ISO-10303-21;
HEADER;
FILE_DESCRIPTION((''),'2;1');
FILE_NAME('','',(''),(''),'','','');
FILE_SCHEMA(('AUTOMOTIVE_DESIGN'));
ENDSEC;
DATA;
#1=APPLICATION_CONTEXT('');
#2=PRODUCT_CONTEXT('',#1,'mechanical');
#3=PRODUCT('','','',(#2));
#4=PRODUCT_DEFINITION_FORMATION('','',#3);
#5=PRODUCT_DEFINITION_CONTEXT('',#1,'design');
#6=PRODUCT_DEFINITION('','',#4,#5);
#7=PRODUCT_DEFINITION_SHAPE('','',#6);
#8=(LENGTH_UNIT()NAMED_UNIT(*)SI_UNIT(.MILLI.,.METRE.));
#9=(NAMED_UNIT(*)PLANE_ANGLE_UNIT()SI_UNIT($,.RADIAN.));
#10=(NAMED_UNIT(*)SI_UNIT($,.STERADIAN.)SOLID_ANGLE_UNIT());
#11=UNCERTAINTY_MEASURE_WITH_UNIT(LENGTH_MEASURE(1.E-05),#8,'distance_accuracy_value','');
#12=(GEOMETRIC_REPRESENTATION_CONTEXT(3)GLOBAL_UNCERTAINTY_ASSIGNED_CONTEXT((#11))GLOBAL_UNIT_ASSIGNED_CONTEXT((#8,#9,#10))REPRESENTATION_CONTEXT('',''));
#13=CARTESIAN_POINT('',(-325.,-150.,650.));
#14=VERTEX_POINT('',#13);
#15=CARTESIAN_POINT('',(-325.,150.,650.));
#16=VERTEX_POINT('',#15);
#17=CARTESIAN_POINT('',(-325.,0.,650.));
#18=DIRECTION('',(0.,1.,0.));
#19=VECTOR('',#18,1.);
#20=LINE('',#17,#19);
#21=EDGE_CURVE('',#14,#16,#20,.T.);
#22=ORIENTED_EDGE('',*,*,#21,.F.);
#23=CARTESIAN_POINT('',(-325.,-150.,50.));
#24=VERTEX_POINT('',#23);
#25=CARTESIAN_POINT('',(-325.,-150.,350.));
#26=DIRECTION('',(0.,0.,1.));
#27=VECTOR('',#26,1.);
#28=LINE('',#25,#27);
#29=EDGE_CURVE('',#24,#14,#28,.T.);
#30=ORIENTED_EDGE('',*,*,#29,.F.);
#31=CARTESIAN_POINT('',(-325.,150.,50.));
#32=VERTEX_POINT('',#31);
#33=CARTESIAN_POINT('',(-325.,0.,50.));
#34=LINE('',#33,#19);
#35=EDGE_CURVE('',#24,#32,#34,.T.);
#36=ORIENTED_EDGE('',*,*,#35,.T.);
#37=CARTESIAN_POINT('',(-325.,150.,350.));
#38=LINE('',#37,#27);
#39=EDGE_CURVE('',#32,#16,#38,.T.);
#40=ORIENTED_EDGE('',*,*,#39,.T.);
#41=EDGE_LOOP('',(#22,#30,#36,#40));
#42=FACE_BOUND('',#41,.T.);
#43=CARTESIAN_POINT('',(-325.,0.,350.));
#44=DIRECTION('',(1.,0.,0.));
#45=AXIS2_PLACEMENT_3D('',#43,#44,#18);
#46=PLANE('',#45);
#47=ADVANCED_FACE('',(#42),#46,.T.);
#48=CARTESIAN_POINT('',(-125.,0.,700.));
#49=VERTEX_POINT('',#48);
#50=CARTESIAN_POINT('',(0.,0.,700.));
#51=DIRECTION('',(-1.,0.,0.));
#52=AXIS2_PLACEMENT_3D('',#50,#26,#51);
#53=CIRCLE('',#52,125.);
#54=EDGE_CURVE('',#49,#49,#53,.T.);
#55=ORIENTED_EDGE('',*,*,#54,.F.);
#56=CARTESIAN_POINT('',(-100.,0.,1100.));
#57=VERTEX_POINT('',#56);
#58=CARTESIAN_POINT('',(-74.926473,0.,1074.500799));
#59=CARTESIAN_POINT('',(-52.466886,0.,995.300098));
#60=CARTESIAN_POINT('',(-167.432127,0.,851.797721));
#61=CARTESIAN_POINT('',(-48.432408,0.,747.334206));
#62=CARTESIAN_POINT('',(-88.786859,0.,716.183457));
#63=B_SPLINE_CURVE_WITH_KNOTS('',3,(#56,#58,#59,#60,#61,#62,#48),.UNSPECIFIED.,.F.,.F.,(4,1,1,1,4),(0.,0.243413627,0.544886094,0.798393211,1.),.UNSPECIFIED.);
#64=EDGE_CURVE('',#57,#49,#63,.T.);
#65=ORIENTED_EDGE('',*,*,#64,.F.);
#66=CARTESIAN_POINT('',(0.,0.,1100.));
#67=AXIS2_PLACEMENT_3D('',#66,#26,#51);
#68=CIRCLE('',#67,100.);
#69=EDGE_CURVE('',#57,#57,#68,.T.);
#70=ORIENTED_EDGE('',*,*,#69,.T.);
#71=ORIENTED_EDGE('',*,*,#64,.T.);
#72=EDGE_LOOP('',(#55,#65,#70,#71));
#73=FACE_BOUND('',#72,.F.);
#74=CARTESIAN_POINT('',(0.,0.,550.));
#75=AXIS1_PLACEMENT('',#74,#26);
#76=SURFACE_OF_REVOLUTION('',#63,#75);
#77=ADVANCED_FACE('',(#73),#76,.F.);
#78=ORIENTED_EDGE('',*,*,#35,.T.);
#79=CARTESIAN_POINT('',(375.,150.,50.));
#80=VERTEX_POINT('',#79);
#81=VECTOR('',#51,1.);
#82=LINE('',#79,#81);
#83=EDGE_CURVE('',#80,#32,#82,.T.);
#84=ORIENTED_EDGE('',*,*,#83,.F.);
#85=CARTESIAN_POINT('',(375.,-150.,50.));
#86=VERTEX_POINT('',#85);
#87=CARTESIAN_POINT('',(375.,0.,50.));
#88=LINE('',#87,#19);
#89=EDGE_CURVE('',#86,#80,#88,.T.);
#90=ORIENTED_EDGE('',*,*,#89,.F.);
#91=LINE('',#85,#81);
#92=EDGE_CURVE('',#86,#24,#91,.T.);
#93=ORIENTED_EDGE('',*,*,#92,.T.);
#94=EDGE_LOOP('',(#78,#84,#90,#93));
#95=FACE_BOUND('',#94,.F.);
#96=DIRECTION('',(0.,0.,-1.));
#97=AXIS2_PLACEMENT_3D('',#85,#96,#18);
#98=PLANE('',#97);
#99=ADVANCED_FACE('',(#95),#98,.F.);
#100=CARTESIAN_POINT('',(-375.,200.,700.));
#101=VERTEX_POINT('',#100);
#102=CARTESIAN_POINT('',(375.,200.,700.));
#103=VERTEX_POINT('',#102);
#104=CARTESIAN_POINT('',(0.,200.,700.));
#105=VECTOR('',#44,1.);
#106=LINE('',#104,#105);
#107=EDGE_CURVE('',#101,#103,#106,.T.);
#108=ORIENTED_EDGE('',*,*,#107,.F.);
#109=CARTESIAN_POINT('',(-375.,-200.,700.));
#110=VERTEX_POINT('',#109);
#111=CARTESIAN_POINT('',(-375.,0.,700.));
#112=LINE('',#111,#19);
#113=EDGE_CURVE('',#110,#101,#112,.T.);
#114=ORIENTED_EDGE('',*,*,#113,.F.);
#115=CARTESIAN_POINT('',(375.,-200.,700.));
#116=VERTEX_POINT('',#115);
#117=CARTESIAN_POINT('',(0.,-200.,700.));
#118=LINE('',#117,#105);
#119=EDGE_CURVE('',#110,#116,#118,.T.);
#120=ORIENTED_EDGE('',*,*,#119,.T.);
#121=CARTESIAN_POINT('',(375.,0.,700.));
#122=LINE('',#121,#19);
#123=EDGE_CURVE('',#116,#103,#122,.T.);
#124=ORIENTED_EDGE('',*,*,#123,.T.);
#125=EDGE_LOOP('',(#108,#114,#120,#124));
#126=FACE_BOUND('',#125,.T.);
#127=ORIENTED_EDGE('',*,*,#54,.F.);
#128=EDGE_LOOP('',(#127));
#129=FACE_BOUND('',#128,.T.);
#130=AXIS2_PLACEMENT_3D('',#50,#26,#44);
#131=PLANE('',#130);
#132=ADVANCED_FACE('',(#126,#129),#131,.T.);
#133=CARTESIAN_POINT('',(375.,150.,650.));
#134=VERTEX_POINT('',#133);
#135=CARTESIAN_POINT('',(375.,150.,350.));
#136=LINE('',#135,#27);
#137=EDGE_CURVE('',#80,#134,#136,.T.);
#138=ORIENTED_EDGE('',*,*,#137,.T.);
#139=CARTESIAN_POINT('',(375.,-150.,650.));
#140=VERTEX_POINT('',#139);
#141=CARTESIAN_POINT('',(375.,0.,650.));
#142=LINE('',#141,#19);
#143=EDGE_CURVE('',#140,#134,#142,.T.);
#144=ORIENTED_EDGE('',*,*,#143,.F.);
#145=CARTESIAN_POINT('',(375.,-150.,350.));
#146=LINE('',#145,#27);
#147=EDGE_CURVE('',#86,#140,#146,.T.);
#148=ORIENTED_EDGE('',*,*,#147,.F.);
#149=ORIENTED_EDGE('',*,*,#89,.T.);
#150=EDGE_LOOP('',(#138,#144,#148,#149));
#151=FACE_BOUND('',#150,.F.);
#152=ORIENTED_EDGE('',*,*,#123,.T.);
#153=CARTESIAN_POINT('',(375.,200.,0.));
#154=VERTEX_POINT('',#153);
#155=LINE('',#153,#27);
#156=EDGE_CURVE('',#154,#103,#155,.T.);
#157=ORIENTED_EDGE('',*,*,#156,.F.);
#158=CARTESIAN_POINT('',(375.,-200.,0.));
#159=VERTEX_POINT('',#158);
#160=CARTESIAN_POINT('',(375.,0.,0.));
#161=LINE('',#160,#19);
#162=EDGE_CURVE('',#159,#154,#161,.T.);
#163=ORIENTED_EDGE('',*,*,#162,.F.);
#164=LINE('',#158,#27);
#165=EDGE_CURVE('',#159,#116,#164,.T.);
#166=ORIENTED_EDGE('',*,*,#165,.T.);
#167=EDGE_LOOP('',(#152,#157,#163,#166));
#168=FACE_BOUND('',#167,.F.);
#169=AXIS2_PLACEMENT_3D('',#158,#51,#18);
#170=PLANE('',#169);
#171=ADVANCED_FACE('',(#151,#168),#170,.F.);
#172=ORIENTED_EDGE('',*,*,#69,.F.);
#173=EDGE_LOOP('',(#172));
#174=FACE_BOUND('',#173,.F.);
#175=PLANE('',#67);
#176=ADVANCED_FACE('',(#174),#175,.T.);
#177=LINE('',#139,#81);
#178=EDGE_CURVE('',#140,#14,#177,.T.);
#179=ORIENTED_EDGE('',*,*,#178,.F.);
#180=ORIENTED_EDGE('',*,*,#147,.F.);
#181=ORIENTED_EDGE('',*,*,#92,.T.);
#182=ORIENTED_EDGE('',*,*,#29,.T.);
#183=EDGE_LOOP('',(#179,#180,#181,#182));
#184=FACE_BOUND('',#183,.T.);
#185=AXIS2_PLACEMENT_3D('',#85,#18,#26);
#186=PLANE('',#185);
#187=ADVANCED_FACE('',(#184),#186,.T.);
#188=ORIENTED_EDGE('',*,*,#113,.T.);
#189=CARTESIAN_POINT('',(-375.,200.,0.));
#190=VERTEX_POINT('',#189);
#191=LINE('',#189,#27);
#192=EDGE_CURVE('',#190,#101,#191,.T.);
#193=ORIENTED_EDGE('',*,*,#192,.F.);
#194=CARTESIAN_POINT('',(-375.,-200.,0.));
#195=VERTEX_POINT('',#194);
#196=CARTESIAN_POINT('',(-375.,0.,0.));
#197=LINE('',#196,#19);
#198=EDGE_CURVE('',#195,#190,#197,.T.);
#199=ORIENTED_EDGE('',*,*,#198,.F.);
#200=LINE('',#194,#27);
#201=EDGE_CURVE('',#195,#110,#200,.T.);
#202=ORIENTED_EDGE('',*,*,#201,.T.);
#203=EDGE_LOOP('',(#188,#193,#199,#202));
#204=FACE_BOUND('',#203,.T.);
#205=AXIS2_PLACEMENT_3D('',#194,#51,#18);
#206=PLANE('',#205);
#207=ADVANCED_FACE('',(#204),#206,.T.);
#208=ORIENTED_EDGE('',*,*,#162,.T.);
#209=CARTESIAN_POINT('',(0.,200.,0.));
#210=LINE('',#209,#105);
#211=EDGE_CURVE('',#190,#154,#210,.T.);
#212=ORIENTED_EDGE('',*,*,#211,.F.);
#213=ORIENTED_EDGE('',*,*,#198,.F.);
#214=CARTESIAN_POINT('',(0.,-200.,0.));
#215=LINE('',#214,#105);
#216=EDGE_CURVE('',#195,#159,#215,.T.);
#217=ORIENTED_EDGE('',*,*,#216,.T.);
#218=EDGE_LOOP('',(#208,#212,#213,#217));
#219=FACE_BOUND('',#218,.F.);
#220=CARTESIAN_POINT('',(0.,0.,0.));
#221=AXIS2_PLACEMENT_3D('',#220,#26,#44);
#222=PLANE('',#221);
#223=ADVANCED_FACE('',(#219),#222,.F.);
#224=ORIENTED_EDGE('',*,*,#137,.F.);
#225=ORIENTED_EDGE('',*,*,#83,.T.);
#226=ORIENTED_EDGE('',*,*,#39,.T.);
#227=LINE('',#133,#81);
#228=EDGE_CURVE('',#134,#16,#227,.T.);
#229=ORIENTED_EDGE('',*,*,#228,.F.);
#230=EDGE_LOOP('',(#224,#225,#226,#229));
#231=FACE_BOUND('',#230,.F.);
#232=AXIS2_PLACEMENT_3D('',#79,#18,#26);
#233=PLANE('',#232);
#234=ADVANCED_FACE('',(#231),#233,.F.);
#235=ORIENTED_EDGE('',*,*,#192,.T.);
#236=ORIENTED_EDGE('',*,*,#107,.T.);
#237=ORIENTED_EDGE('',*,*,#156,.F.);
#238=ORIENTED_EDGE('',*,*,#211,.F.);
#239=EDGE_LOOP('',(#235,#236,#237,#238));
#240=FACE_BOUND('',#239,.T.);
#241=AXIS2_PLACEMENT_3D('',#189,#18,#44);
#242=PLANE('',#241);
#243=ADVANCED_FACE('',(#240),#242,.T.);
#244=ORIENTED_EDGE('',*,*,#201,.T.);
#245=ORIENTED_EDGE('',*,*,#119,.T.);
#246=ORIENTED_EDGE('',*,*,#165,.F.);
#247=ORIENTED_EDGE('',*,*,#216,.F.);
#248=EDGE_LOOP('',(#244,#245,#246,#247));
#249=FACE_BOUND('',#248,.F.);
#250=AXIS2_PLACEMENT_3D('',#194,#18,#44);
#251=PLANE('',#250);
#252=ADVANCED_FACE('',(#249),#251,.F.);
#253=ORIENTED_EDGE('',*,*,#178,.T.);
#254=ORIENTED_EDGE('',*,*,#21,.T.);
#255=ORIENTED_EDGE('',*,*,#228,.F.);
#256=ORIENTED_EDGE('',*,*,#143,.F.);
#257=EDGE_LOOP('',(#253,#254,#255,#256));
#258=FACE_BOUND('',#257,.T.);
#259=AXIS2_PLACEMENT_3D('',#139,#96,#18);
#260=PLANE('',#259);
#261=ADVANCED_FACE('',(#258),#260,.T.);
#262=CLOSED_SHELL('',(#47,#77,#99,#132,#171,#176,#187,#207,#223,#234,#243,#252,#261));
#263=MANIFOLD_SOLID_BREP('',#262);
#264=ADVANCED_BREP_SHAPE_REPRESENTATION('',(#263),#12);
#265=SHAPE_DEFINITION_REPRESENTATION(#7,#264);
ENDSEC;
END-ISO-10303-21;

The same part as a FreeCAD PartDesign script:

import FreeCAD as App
import Part
import Sketcher
Q = App.Units.Quantity


def add_polygon(sketch, points):
    """Adds a closed chain of lines whose ends are joined by coincident constraints."""
    first, n = sketch.GeometryCount, len(points)
    for a, b in zip(points, points[1:] + points[:1]):
        sketch.addGeometry(Part.LineSegment(App.Vector(*a, 0), App.Vector(*b, 0)), False)
    for i in range(n):
        sketch.addConstraint(Sketcher.Constraint("Coincident", first + i, 2, first + (i + 1) % n, 1))

doc = App.newDocument("Part")
params = doc.addObject("Spreadsheet::Sheet", "Params")
for row, (alias, value) in enumerate([
    ("sketch1_width", "750 mm"),
    ("sketch1_height", "400 mm"),
    ("pad1_length", "700 mm"),
    ("sketch2_width", "300 mm"),
    ("sketch2_height", "600 mm"),
    ("pocket1_length", "700 mm"),
    ("revolution_angle", "360 deg"),
], start=1):
    params.set(f"A{row}", alias)
    params.set(f"B{row}", "=" + value)
    params.setAlias(f"B{row}", alias)

body = doc.addObject("PartDesign::Body", "Body")

# Sketch on XY plane
sketch1 = doc.addObject("Sketcher::SketchObject", "Sketch")
body.addObject(sketch1)
sketch1.AttachmentSupport = (doc.XY_Plane, [""])
sketch1.MapMode = "FlatFace"
add_polygon(sketch1, [(-375, 200), (-375, -200), (375, -200), (375, 200)])  # lines 0-3
sketch1.addConstraint(Sketcher.Constraint("Vertical", 0))
sketch1.addConstraint(Sketcher.Constraint("Horizontal", 1))
sketch1.addConstraint(Sketcher.Constraint("Vertical", 2))
sketch1.addConstraint(Sketcher.Constraint("Horizontal", 3))
sketch1.addConstraint(Sketcher.Constraint("Symmetric", 0, 2, 2, 2, -1, 1))
sketch1.addConstraint(Sketcher.Constraint("DistanceX", 1, 1, 1, 2, Q("750 mm")))
sketch1.addConstraint(Sketcher.Constraint("DistanceY", 0, 2, 0, 1, Q("400 mm")))
sketch1.setExpression("Constraints[9]", "Params.sketch1_width")
sketch1.setExpression("Constraints[10]", "Params.sketch1_height")
pad1 = doc.addObject("PartDesign::Pad", "Pad")
body.addObject(pad1)
pad1.Profile = sketch1
pad1.setExpression("Length", "Params.pad1_length")

# Sketch on YZ plane
sketch2 = doc.addObject("Sketcher::SketchObject", "Sketch001")
body.addObject(sketch2)
sketch2.AttachmentSupport = (doc.YZ_Plane, [""])
sketch2.MapMode = "FlatFace"
sketch2.AttachmentOffset = App.Placement(App.Vector(0, 0, 375), App.Rotation())
add_polygon(sketch2, [(-150, 650), (-150, 50), (150, 50), (150, 650)])  # lines 0-3
sketch2.addConstraint(Sketcher.Constraint("Vertical", 0))
sketch2.addConstraint(Sketcher.Constraint("Horizontal", 1))
sketch2.addConstraint(Sketcher.Constraint("Vertical", 2))
sketch2.addConstraint(Sketcher.Constraint("Horizontal", 3))
sketch2.addConstraint(Sketcher.Constraint("DistanceX", 1, 1, 1, 2, Q("300 mm")))
sketch2.addConstraint(Sketcher.Constraint("DistanceY", 0, 2, 0, 1, Q("600 mm")))
sketch2.addConstraint(Sketcher.Constraint("DistanceX", 0, 2, -1, 1, Q("150 mm")))
sketch2.addConstraint(Sketcher.Constraint("DistanceY", -1, 1, 0, 2, Q("50 mm")))
sketch2.setExpression("Constraints[8]", "Params.sketch2_width")
sketch2.setExpression("Constraints[9]", "Params.sketch2_height")
pocket1 = doc.addObject("PartDesign::Pocket", "Pocket")
body.addObject(pocket1)
pocket1.Profile = sketch2
pocket1.setExpression("Length", "Params.pocket1_length")

# Sketch on XZ plane
sketch3 = doc.addObject("Sketcher::SketchObject", "Sketch002")
body.addObject(sketch3)
sketch3.AttachmentSupport = (doc.XZ_Plane, [""])
sketch3.MapMode = "FlatFace"
sketch3.addGeometry(Part.LineSegment(App.Vector(0, 1100, 0), App.Vector(-100, 1100, 0)), False)
sketch3.addGeometry(Part.BSplineCurve([App.Vector(-100, 1100, 0), App.Vector(-74.926473, 1074.500799, 0), App.Vector(-52.466886, 995.300098, 0), App.Vector(-167.432127, 851.797721, 0), App.Vector(-48.432408, 747.334206, 0), App.Vector(-88.786859, 716.183457, 0), App.Vector(-125, 700, 0)], [4, 1, 1, 1, 4], [0, 0.243413627, 0.544886094, 0.798393211, 1], False, 3, [1, 1, 1, 1, 1, 1, 1], False), False)
sketch3.addGeometry(Part.LineSegment(App.Vector(-125, 700, 0), App.Vector(0, 700, 0)), False)
sketch3.addGeometry(Part.LineSegment(App.Vector(0, 700, 0), App.Vector(0, 1100, 0)), False)
sketch3.addConstraint(Sketcher.Constraint("Block", 1))
sketch3.addConstraint(Sketcher.Constraint("Coincident", 0, 2, 1, 1))
sketch3.addConstraint(Sketcher.Constraint("Coincident", 1, 2, 2, 1))
sketch3.addConstraint(Sketcher.Constraint("Coincident", 2, 2, 3, 1))
sketch3.addConstraint(Sketcher.Constraint("Coincident", 3, 2, 0, 1))
sketch3.addConstraint(Sketcher.Constraint("Horizontal", 0))
sketch3.addConstraint(Sketcher.Constraint("Horizontal", 2))
sketch3.addConstraint(Sketcher.Constraint("Vertical", 3))
sketch3.addConstraint(Sketcher.Constraint("PointOnObject", 2, 2, -2))
revolution = doc.addObject("PartDesign::Revolution", "Revolution")
body.addObject(revolution)
revolution.Profile = sketch3
revolution.ReferenceAxis = (sketch3, ["V_Axis"])
revolution.setExpression("Angle", "Params.revolution_angle")

doc.recompute()
